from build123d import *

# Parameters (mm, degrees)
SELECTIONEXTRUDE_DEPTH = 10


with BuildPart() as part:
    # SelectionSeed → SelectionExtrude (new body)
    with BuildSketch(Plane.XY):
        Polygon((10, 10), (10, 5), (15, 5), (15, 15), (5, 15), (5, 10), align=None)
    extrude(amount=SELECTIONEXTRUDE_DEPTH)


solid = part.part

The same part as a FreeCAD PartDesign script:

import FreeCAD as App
import Part
import Sketcher
from FreeCAD import Vector

doc = App.newDocument("Part")
body = doc.addObject("PartDesign::Body", "Body")

sketch1 = body.newObject("Sketcher::SketchObject", "Sketch")
sketch1.AttachmentSupport = (doc.getObject("XY_Plane"), [""])
sketch1.MapMode = "FlatFace"
sketch1.addGeometry(Part.LineSegment(Vector(10, 10, 0), Vector(10, 5, 0)), False)
sketch1.addGeometry(Part.LineSegment(Vector(10, 5, 0), Vector(15, 5, 0)), False)
sketch1.addGeometry(Part.LineSegment(Vector(15, 5, 0), Vector(15, 15, 0)), False)
sketch1.addGeometry(Part.LineSegment(Vector(15, 15, 0), Vector(5, 15, 0)), False)
sketch1.addGeometry(Part.LineSegment(Vector(5, 15, 0), Vector(5, 10, 0)), False)
sketch1.addGeometry(Part.LineSegment(Vector(5, 10, 0), Vector(10, 10, 0)), False)
sketch1.addConstraint(Sketcher.Constraint("Coincident", 0, 2, 1, 1))
sketch1.addConstraint(Sketcher.Constraint("Coincident", 1, 2, 2, 1))
sketch1.addConstraint(Sketcher.Constraint("Coincident", 2, 2, 3, 1))
sketch1.addConstraint(Sketcher.Constraint("Coincident", 3, 2, 4, 1))
sketch1.addConstraint(Sketcher.Constraint("Coincident", 4, 2, 5, 1))
sketch1.addConstraint(Sketcher.Constraint("Coincident", 5, 2, 0, 1))
sketch1.addConstraint(Sketcher.Constraint("Vertical", 0))
sketch1.addConstraint(Sketcher.Constraint("Horizontal", 1))
sketch1.addConstraint(Sketcher.Constraint("Vertical", 2))
sketch1.addConstraint(Sketcher.Constraint("Horizontal", 3))
sketch1.addConstraint(Sketcher.Constraint("Vertical", 4))
sketch1.addConstraint(Sketcher.Constraint("Horizontal", 5))
sketch1.addConstraint(Sketcher.Constraint("Equal", 1, 5))
sketch1.addConstraint(Sketcher.Constraint("Equal", 5, 0))
sketch1.addConstraint(Sketcher.Constraint("Equal", 3, 2))
sketch1.addConstraint(Sketcher.Constraint("DistanceX", 1, 1, 1, 2, 5.0))
sketch1.addConstraint(Sketcher.Constraint("DistanceX", -1, 1, 0, 2, 10.0))
sketch1.addConstraint(Sketcher.Constraint("DistanceY", -1, 1, 0, 2, 5.0))
pad1 = body.newObject("PartDesign::Pad", "Pad")
pad1.Profile = sketch1
pad1.Length = 10

doc.recompute()
